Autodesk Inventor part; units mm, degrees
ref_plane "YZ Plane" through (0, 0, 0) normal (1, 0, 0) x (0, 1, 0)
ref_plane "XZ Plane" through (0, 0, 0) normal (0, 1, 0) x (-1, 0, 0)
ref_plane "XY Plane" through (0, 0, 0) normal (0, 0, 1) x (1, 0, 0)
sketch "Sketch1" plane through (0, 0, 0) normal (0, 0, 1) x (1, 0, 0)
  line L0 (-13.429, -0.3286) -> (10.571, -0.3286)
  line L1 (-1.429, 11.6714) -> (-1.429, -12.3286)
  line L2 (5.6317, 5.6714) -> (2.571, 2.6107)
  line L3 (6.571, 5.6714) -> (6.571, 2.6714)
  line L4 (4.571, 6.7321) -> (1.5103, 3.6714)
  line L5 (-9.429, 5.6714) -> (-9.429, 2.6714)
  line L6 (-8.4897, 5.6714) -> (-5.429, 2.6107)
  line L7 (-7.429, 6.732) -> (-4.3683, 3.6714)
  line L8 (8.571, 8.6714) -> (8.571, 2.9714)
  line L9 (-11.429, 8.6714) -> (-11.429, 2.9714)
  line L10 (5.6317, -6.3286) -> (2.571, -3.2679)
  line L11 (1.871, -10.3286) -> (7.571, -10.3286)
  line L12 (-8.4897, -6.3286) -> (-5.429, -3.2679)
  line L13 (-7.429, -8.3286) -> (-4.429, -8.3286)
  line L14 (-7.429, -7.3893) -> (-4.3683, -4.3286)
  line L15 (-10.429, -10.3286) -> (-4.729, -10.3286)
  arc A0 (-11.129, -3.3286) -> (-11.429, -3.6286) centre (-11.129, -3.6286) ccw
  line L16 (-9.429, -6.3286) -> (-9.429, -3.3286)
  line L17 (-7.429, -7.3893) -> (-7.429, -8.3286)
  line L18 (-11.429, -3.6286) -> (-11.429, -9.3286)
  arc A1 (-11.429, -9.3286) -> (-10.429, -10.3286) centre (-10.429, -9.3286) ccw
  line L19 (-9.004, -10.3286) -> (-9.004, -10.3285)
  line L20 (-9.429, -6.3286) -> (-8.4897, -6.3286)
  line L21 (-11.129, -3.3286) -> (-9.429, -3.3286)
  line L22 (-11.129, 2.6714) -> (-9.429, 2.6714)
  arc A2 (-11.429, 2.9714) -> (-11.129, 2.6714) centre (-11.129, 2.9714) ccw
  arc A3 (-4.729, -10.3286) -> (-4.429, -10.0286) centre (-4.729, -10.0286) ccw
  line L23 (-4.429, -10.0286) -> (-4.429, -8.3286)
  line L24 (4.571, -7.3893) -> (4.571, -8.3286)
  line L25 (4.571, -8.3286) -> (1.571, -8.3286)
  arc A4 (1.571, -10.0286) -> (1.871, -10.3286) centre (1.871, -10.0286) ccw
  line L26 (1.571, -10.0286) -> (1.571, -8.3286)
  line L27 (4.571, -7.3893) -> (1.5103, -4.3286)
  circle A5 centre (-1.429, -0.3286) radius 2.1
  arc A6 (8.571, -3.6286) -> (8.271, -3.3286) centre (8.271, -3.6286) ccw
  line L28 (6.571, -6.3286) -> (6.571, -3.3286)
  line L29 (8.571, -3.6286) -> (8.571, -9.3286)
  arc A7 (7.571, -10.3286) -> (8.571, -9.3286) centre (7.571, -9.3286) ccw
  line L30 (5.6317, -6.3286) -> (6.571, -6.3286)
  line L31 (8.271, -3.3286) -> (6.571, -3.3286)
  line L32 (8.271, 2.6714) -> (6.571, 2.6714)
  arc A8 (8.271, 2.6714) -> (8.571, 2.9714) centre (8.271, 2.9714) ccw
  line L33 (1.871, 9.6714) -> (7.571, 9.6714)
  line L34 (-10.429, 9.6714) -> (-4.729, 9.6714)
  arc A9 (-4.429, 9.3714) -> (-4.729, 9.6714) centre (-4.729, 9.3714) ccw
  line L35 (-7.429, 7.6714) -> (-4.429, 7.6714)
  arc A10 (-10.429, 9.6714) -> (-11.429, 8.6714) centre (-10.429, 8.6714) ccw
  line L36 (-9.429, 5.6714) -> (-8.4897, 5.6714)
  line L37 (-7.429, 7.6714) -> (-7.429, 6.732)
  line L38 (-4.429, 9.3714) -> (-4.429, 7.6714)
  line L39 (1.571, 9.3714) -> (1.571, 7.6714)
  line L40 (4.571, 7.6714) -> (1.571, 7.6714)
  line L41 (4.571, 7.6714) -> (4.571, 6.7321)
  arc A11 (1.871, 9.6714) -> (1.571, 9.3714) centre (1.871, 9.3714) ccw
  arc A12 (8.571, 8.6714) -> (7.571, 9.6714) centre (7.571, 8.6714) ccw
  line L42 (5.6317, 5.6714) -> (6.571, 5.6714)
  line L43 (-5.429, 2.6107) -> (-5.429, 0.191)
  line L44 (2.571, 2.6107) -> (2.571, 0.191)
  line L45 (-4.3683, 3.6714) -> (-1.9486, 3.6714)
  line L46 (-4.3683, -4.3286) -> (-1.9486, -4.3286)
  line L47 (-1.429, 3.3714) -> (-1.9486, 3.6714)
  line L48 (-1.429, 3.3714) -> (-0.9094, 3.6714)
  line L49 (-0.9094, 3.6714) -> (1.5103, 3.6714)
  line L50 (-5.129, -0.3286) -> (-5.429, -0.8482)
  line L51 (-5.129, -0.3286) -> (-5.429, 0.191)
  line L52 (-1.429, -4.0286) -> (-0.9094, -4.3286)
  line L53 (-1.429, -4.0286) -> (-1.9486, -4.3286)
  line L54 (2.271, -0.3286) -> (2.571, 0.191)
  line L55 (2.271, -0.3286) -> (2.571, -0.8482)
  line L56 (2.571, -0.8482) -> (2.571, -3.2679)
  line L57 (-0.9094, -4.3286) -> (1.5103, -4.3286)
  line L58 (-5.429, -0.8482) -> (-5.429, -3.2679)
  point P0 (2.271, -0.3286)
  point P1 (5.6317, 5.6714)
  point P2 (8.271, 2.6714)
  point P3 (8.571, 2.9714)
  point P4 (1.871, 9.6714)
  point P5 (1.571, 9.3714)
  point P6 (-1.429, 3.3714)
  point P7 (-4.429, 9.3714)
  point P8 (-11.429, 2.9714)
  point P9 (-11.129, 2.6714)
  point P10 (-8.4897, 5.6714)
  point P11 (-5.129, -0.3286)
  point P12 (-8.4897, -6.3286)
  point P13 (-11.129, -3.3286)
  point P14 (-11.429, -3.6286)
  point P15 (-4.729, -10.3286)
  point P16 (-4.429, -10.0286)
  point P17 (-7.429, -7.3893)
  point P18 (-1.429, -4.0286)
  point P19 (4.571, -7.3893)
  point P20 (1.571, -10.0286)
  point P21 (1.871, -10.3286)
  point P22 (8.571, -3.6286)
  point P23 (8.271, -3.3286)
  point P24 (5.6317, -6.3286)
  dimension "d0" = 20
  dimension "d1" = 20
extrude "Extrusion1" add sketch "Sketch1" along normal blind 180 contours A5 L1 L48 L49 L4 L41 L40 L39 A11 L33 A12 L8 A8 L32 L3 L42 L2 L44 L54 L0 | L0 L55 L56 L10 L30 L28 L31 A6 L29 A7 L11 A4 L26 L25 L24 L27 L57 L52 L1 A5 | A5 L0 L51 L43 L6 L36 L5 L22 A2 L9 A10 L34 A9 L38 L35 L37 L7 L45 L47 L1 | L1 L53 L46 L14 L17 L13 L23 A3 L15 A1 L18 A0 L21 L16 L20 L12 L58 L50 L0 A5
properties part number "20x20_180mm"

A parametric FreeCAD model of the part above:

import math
import FreeCAD as App
import Part
import Sketcher

V = App.Vector
Q = App.Units.Quantity

doc = App.newDocument("Part")
body = doc.addObject("PartDesign::Body", "Body")

sketch1 = body.newObject("Sketcher::SketchObject", "Sketch")
sketch1.AttachmentSupport = (doc.getObject("XY_Plane"), [""])
sketch1.MapMode = "FlatFace"
sketch1.addGeometry(Part.LineSegment(V(-0.91, 3.67, 0), V(-1.43, 3.37, 0)), False)
sketch1.addGeometry(Part.LineSegment(V(-1.43, 3.37, 0), V(-1.95, 3.67, 0)), False)
sketch1.addGeometry(Part.LineSegment(V(-1.95, 3.67, 0), V(-4.37, 3.67, 0)), False)
sketch1.addGeometry(Part.LineSegment(V(-4.37, 3.67, 0), V(-7.43, 6.73, 0)), False)
sketch1.addGeometry(Part.LineSegment(V(-7.43, 6.73, 0), V(-7.43, 7.67, 0)), False)
sketch1.addGeometry(Part.LineSegment(V(-7.43, 7.67, 0), V(-4.43, 7.67, 0)), False)
sketch1.addGeometry(Part.LineSegment(V(-4.43, 7.67, 0), V(-4.43, 9.37, 0)), False)
sketch1.addGeometry(Part.ArcOfCircle(Part.Circle(V(-4.73, 9.37, 0), V(0, 0, 1), 0.3), math.radians(0), math.radians(90)), False)
sketch1.addGeometry(Part.LineSegment(V(-4.73, 9.67, 0), V(-10.43, 9.67, 0)), False)
sketch1.addGeometry(Part.ArcOfCircle(Part.Circle(V(-10.43, 8.67, 0), V(0, 0, 1), 1), math.radians(90), math.radians(180)), False)
sketch1.addGeometry(Part.LineSegment(V(-11.43, 8.67, 0), V(-11.43, 2.97, 0)), False)
sketch1.addGeometry(Part.ArcOfCircle(Part.Circle(V(-11.13, 2.97, 0), V(0, 0, 1), 0.3), math.radians(180), math.radians(270)), False)
sketch1.addGeometry(Part.LineSegment(V(-11.13, 2.67, 0), V(-9.43, 2.67, 0)), False)
sketch1.addGeometry(Part.LineSegment(V(-9.43, 2.67, 0), V(-9.43, 5.67, 0)), False)
sketch1.addGeometry(Part.LineSegment(V(-9.43, 5.67, 0), V(-8.49, 5.67, 0)), False)
sketch1.addGeometry(Part.LineSegment(V(-8.49, 5.67, 0), V(-5.43, 2.61, 0)), False)
sketch1.addGeometry(Part.LineSegment(V(-5.43, 2.61, 0), V(-5.43, 0.19, 0)), False)
sketch1.addGeometry(Part.LineSegment(V(-5.43, 0.19, 0), V(-5.13, -0.33, 0)), False)
sketch1.addGeometry(Part.LineSegment(V(-5.13, -0.33, 0), V(-5.43, -0.85, 0)), False)
sketch1.addGeometry(Part.LineSegment(V(-5.43, -0.85, 0), V(-5.43, -3.27, 0)), False)
sketch1.addGeometry(Part.LineSegment(V(-5.43, -3.27, 0), V(-8.49, -6.33, 0)), False)
sketch1.addGeometry(Part.LineSegment(V(-8.49, -6.33, 0), V(-9.43, -6.33, 0)), False)
sketch1.addGeometry(Part.LineSegment(V(-9.43, -6.33, 0), V(-9.43, -3.33, 0)), False)
sketch1.addGeometry(Part.LineSegment(V(-9.43, -3.33, 0), V(-11.13, -3.33, 0)), False)
sketch1.addGeometry(Part.ArcOfCircle(Part.Circle(V(-11.13, -3.63, 0), V(0, 0, 1), 0.3), math.radians(90), math.radians(180)), False)
sketch1.addGeometry(Part.LineSegment(V(-11.43, -3.63, 0), V(-11.43, -9.33, 0)), False)
sketch1.addGeometry(Part.ArcOfCircle(Part.Circle(V(-10.43, -9.33, 0), V(0, 0, 1), 1), math.radians(180), math.radians(270)), False)
sketch1.addGeometry(Part.LineSegment(V(-10.43, -10.33, 0), V(-4.73, -10.33, 0)), False)
sketch1.addGeometry(Part.ArcOfCircle(Part.Circle(V(-4.73, -10.03, 0), V(0, 0, 1), 0.3), math.radians(-90), math.radians(0)), False)
sketch1.addGeometry(Part.LineSegment(V(-4.43, -10.03, 0), V(-4.43, -8.33, 0)), False)
sketch1.addGeometry(Part.LineSegment(V(-4.43, -8.33, 0), V(-7.43, -8.33, 0)), False)
sketch1.addGeometry(Part.LineSegment(V(-7.43, -8.33, 0), V(-7.43, -7.39, 0)), False)
sketch1.addGeometry(Part.LineSegment(V(-7.43, -7.39, 0), V(-4.37, -4.33, 0)), False)
sketch1.addGeometry(Part.LineSegment(V(-4.37, -4.33, 0), V(-1.95, -4.33, 0)), False)
sketch1.addGeometry(Part.LineSegment(V(-1.95, -4.33, 0), V(-1.43, -4.03, 0)), False)
sketch1.addGeometry(Part.LineSegment(V(-1.43, -4.03, 0), V(-0.91, -4.33, 0)), False)
sketch1.addGeometry(Part.LineSegment(V(-0.91, -4.33, 0), V(1.51, -4.33, 0)), False)
sketch1.addGeometry(Part.LineSegment(V(1.51, -4.33, 0), V(4.57, -7.39, 0)), False)
sketch1.addGeometry(Part.LineSegment(V(4.57, -7.39, 0), V(4.57, -8.33, 0)), False)
sketch1.addGeometry(Part.LineSegment(V(4.57, -8.33, 0), V(1.57, -8.33, 0)), False)
sketch1.addGeometry(Part.LineSegment(V(1.57, -8.33, 0), V(1.57, -10.03, 0)), False)
sketch1.addGeometry(Part.ArcOfCircle(Part.Circle(V(1.87, -10.03, 0), V(0, 0, 1), 0.3), math.radians(180), math.radians(270)), False)
sketch1.addGeometry(Part.LineSegment(V(1.87, -10.33, 0), V(7.57, -10.33, 0)), False)
sketch1.addGeometry(Part.ArcOfCircle(Part.Circle(V(7.57, -9.33, 0), V(0, 0, 1), 1), math.radians(-90), math.radians(0)), False)
sketch1.addGeometry(Part.LineSegment(V(8.57, -9.33, 0), V(8.57, -3.63, 0)), False)
sketch1.addGeometry(Part.ArcOfCircle(Part.Circle(V(8.27, -3.63, 0), V(0, 0, 1), 0.3), math.radians(0), math.radians(90)), False)
sketch1.addGeometry(Part.LineSegment(V(8.27, -3.33, 0), V(6.57, -3.33, 0)), False)
sketch1.addGeometry(Part.LineSegment(V(6.57, -3.33, 0), V(6.57, -6.33, 0)), False)
sketch1.addGeometry(Part.LineSegment(V(6.57, -6.33, 0), V(5.63, -6.33, 0)), False)
sketch1.addGeometry(Part.LineSegment(V(5.63, -6.33, 0), V(2.57, -3.27, 0)), False)
sketch1.addGeometry(Part.LineSegment(V(2.57, -3.27, 0), V(2.57, -0.85, 0)), False)
sketch1.addGeometry(Part.LineSegment(V(2.57, -0.85, 0), V(2.27, -0.33, 0)), False)
sketch1.addGeometry(Part.LineSegment(V(2.27, -0.33, 0), V(2.57, 0.19, 0)), False)
sketch1.addGeometry(Part.LineSegment(V(2.57, 0.19, 0), V(2.57, 2.61, 0)), False)
sketch1.addGeometry(Part.LineSegment(V(2.57, 2.61, 0), V(5.63, 5.67, 0)), False)
sketch1.addGeometry(Part.LineSegment(V(5.63, 5.67, 0), V(6.57, 5.67, 0)), False)
sketch1.addGeometry(Part.LineSegment(V(6.57, 5.67, 0), V(6.57, 2.67, 0)), False)
sketch1.addGeometry(Part.LineSegment(V(6.57, 2.67, 0), V(8.27, 2.67, 0)), False)
sketch1.addGeometry(Part.ArcOfCircle(Part.Circle(V(8.27, 2.97, 0), V(0, 0, 1), 0.3), math.radians(-90), math.radians(0)), False)
sketch1.addGeometry(Part.LineSegment(V(8.57, 2.97, 0), V(8.57, 8.67, 0)), False)
sketch1.addGeometry(Part.ArcOfCircle(Part.Circle(V(7.57, 8.67, 0), V(0, 0, 1), 1), math.radians(0), math.radians(90)), False)
sketch1.addGeometry(Part.LineSegment(V(7.57, 9.67, 0), V(1.87, 9.67, 0)), False)
sketch1.addGeometry(Part.ArcOfCircle(Part.Circle(V(1.87, 9.37, 0), V(0, 0, 1), 0.3), math.radians(90), math.radians(180)), False)
sketch1.addGeometry(Part.LineSegment(V(1.57, 9.37, 0), V(1.57, 7.67, 0)), False)
sketch1.addGeometry(Part.LineSegment(V(1.57, 7.67, 0), V(4.57, 7.67, 0)), False)
sketch1.addGeometry(Part.LineSegment(V(4.57, 7.67, 0), V(4.57, 6.73, 0)), False)
sketch1.addGeometry(Part.LineSegment(V(4.57, 6.73, 0), V(1.51, 3.67, 0)), False)
sketch1.addGeometry(Part.LineSegment(V(1.51, 3.67, 0), V(-0.91, 3.67, 0)), False)
sketch1.addGeometry(Part.Circle(V(-1.43, -0.33, 0), V(0, 0, 1), 2.1), False)
sketch1.addConstraint(Sketcher.Constraint("Coincident", 0, 2, 1, 1))
sketch1.addConstraint(Sketcher.Constraint("Coincident", 1, 2, 2, 1))
sketch1.addConstraint(Sketcher.Constraint("Coincident", 2, 2, 3, 1))
sketch1.addConstraint(Sketcher.Constraint("Coincident", 3, 2, 4, 1))
sketch1.addConstraint(Sketcher.Constraint("Coincident", 4, 2, 5, 1))
sketch1.addConstraint(Sketcher.Constraint("Coincident", 5, 2, 6, 1))
sketch1.addConstraint(Sketcher.Constraint("Tangent", 6, 2, 7, 1))
sketch1.addConstraint(Sketcher.Constraint("Tangent", 7, 2, 8, 1))
sketch1.addConstraint(Sketcher.Constraint("Tangent", 8, 2, 9, 1))
sketch1.addConstraint(Sketcher.Constraint("Tangent", 9, 2, 10, 1))
sketch1.addConstraint(Sketcher.Constraint("Tangent", 10, 2, 11, 1))
sketch1.addConstraint(Sketcher.Constraint("Tangent", 11, 2, 12, 1))
sketch1.addConstraint(Sketcher.Constraint("Coincident", 12, 2, 13, 1))
sketch1.addConstraint(Sketcher.Constraint("Coincident", 13, 2, 14, 1))
sketch1.addConstraint(Sketcher.Constraint("Coincident", 14, 2, 15, 1))
sketch1.addConstraint(Sketcher.Constraint("Coincident", 15, 2, 16, 1))
sketch1.addConstraint(Sketcher.Constraint("Coincident", 16, 2, 17, 1))
sketch1.addConstraint(Sketcher.Constraint("Coincident", 17, 2, 18, 1))
sketch1.addConstraint(Sketcher.Constraint("Coincident", 18, 2, 19, 1))
sketch1.addConstraint(Sketcher.Constraint("Coincident", 19, 2, 20, 1))
sketch1.addConstraint(Sketcher.Constraint("Coincident", 20, 2, 21, 1))
sketch1.addConstraint(Sketcher.Constraint("Coincident", 21, 2, 22, 1))
sketch1.addConstraint(Sketcher.Constraint("Coincident", 22, 2, 23, 1))
sketch1.addConstraint(Sketcher.Constraint("Tangent", 23, 2, 24, 1))
sketch1.addConstraint(Sketcher.Constraint("Tangent", 24, 2, 25, 1))
sketch1.addConstraint(Sketcher.Constraint("Tangent", 25, 2, 26, 1))
sketch1.addConstraint(Sketcher.Constraint("Tangent", 26, 2, 27, 1))
sketch1.addConstraint(Sketcher.Constraint("Tangent", 27, 2, 28, 1))
sketch1.addConstraint(Sketcher.Constraint("Tangent", 28, 2, 29, 1))
sketch1.addConstraint(Sketcher.Constraint("Coincident", 29, 2, 30, 1))
sketch1.addConstraint(Sketcher.Constraint("Coincident", 30, 2, 31, 1))
sketch1.addConstraint(Sketcher.Constraint("Coincident", 31, 2, 32, 1))
sketch1.addConstraint(Sketcher.Constraint("Coincident", 32, 2, 33, 1))
sketch1.addConstraint(Sketcher.Constraint("Coincident", 33, 2, 34, 1))
sketch1.addConstraint(Sketcher.Constraint("Coincident", 34, 2, 35, 1))
sketch1.addConstraint(Sketcher.Constraint("Coincident", 35, 2, 36, 1))
sketch1.addConstraint(Sketcher.Constraint("Coincident", 36, 2, 37, 1))
sketch1.addConstraint(Sketcher.Constraint("Coincident", 37, 2, 38, 1))
sketch1.addConstraint(Sketcher.Constraint("Coincident", 38, 2, 39, 1))
sketch1.addConstraint(Sketcher.Constraint("Coincident", 39, 2, 40, 1))
sketch1.addConstraint(Sketcher.Constraint("Tangent", 40, 2, 41, 1))
sketch1.addConstraint(Sketcher.Constraint("Tangent", 41, 2, 42, 1))
sketch1.addConstraint(Sketcher.Constraint("Tangent", 42, 2, 43, 1))
sketch1.addConstraint(Sketcher.Constraint("Tangent", 43, 2, 44, 1))
sketch1.addConstraint(Sketcher.Constraint("Tangent", 44, 2, 45, 1))
sketch1.addConstraint(Sketcher.Constraint("Tangent", 45, 2, 46, 1))
sketch1.addConstraint(Sketcher.Constraint("Coincident", 46, 2, 47, 1))
sketch1.addConstraint(Sketcher.Constraint("Coincident", 47, 2, 48, 1))
sketch1.addConstraint(Sketcher.Constraint("Coincident", 48, 2, 49, 1))
sketch1.addConstraint(Sketcher.Constraint("Coincident", 49, 2, 50, 1))
sketch1.addConstraint(Sketcher.Constraint("Coincident", 50, 2, 51, 1))
sketch1.addConstraint(Sketcher.Constraint("Coincident", 51, 2, 52, 1))
sketch1.addConstraint(Sketcher.Constraint("Coincident", 52, 2, 53, 1))
sketch1.addConstraint(Sketcher.Constraint("Coincident", 53, 2, 54, 1))
sketch1.addConstraint(Sketcher.Constraint("Coincident", 54, 2, 55, 1))
sketch1.addConstraint(Sketcher.Constraint("Coincident", 55, 2, 56, 1))
sketch1.addConstraint(Sketcher.Constraint("Coincident", 56, 2, 57, 1))
sketch1.addConstraint(Sketcher.Constraint("Tangent", 57, 2, 58, 1))
sketch1.addConstraint(Sketcher.Constraint("Tangent", 58, 2, 59, 1))
sketch1.addConstraint(Sketcher.Constraint("Tangent", 59, 2, 60, 1))
sketch1.addConstraint(Sketcher.Constraint("Tangent", 60, 2, 61, 1))
sketch1.addConstraint(Sketcher.Constraint("Tangent", 61, 2, 62, 1))
sketch1.addConstraint(Sketcher.Constraint("Tangent", 62, 2, 63, 1))
sketch1.addConstraint(Sketcher.Constraint("Coincident", 63, 2, 64, 1))
sketch1.addConstraint(Sketcher.Constraint("Coincident", 64, 2, 65, 1))
sketch1.addConstraint(Sketcher.Constraint("Coincident", 65, 2, 66, 1))
sketch1.addConstraint(Sketcher.Constraint("Coincident", 66, 2, 67, 1))
sketch1.addConstraint(Sketcher.Constraint("Coincident", 67, 2, 0, 1))
sketch1.addConstraint(Sketcher.Constraint("Horizontal", 2))
sketch1.addConstraint(Sketcher.Constraint("Vertical", 4))
sketch1.addConstraint(Sketcher.Constraint("Horizontal", 5))
sketch1.addConstraint(Sketcher.Constraint("Vertical", 6))
sketch1.addConstraint(Sketcher.Constraint("Horizontal", 8))
sketch1.addConstraint(Sketcher.Constraint("Vertical", 10))
sketch1.addConstraint(Sketcher.Constraint("Horizontal", 12))
sketch1.addConstraint(Sketcher.Constraint("Vertical", 13))
sketch1.addConstraint(Sketcher.Constraint("Horizontal", 14))
sketch1.addConstraint(Sketcher.Constraint("Vertical", 16))
sketch1.addConstraint(Sketcher.Constraint("Vertical", 19))
sketch1.addConstraint(Sketcher.Constraint("Horizontal", 21))
sketch1.addConstraint(Sketcher.Constraint("Vertical", 22))
sketch1.addConstraint(Sketcher.Constraint("Horizontal", 23))
sketch1.addConstraint(Sketcher.Constraint("Vertical", 25))
sketch1.addConstraint(Sketcher.Constraint("Horizontal", 27))
sketch1.addConstraint(Sketcher.Constraint("Vertical", 29))
sketch1.addConstraint(Sketcher.Constraint("Horizontal", 30))
sketch1.addConstraint(Sketcher.Constraint("Vertical", 31))
sketch1.addConstraint(Sketcher.Constraint("Horizontal", 33))
sketch1.addConstraint(Sketcher.Constraint("Horizontal", 36))
sketch1.addConstraint(Sketcher.Constraint("Vertical", 38))
sketch1.addConstraint(Sketcher.Constraint("Horizontal", 39))
sketch1.addConstraint(Sketcher.Constraint("Vertical", 40))
sketch1.addConstraint(Sketcher.Constraint("Horizontal", 42))
sketch1.addConstraint(Sketcher.Constraint("Vertical", 44))
sketch1.addConstraint(Sketcher.Constraint("Horizontal", 46))
sketch1.addConstraint(Sketcher.Constraint("Vertical", 47))
sketch1.addConstraint(Sketcher.Constraint("Horizontal", 48))
sketch1.addConstraint(Sketcher.Constraint("Vertical", 50))
sketch1.addConstraint(Sketcher.Constraint("Vertical", 53))
sketch1.addConstraint(Sketcher.Constraint("Horizontal", 55))
sketch1.addConstraint(Sketcher.Constraint("Vertical", 56))
sketch1.addConstraint(Sketcher.Constraint("Horizontal", 57))
sketch1.addConstraint(Sketcher.Constraint("Vertical", 59))
sketch1.addConstraint(Sketcher.Constraint("Horizontal", 61))
sketch1.addConstraint(Sketcher.Constraint("Vertical", 63))
sketch1.addConstraint(Sketcher.Constraint("Horizontal", 64))
sketch1.addConstraint(Sketcher.Constraint("Vertical", 65))
sketch1.addConstraint(Sketcher.Constraint("Horizontal", 67))
sketch1.addConstraint(Sketcher.Constraint("Equal", 7, 11))
sketch1.addConstraint(Sketcher.Constraint("Equal", 11, 24))
sketch1.addConstraint(Sketcher.Constraint("Equal", 9, 26))
sketch1.addConstraint(Sketcher.Constraint("Equal", 24, 28))
sketch1.addConstraint(Sketcher.Constraint("Equal", 28, 41))
sketch1.addConstraint(Sketcher.Constraint("Equal", 26, 43))
sketch1.addConstraint(Sketcher.Constraint("Equal", 41, 45))
sketch1.addConstraint(Sketcher.Constraint("Equal", 45, 58))
sketch1.addConstraint(Sketcher.Constraint("Equal", 43, 60))
sketch1.addConstraint(Sketcher.Constraint("Equal", 58, 62))
sketch1.addConstraint(Sketcher.Constraint("Parallel", 3, 15))
sketch1.addConstraint(Sketcher.Constraint("Perpendicular", 0, 17))
sketch1.addConstraint(Sketcher.Constraint("Perpendicular", 1, 18))
sketch1.addConstraint(Sketcher.Constraint("Perpendicular", 15, 20))
sketch1.addConstraint(Sketcher.Constraint("Parallel", 20, 32))
sketch1.addConstraint(Sketcher.Constraint("Perpendicular", 17, 34))
sketch1.addConstraint(Sketcher.Constraint("Perpendicular", 18, 35))
sketch1.addConstraint(Sketcher.Constraint("Perpendicular", 32, 37))
sketch1.addConstraint(Sketcher.Constraint("Parallel", 37, 49))
sketch1.addConstraint(Sketcher.Constraint("Perpendicular", 34, 51))
sketch1.addConstraint(Sketcher.Constraint("Perpendicular", 35, 52))
sketch1.addConstraint(Sketcher.Constraint("Perpendicular", 49, 54))
sketch1.addConstraint(Sketcher.Constraint("Parallel", 54, 66))
sketch1.addConstraint(Sketcher.Constraint("Horizontal", 28, 3, 41, 3))
sketch1.addConstraint(Sketcher.Constraint("Horizontal", 24, 3, 45, 3))
sketch1.addConstraint(Sketcher.Constraint("Horizontal", 11, 3, 58, 3))
sketch1.addConstraint(Sketcher.Constraint("Horizontal", 9, 3, 60, 3))
sketch1.addConstraint(Sketcher.Constraint("Horizontal", 68, 3, 17, 2))
sketch1.addConstraint(Sketcher.Constraint("Horizontal", 33, 2, 35, 2))
sketch1.addConstraint(Sketcher.Constraint("Horizontal", 31, 2, 37, 2))
sketch1.addConstraint(Sketcher.Constraint("Horizontal", 30, 2, 38, 2))
sketch1.addConstraint(Sketcher.Constraint("Horizontal", 21, 2, 47, 2))
sketch1.addConstraint(Sketcher.Constraint("Horizontal", 19, 2, 49, 2))
sketch1.addConstraint(Sketcher.Constraint("Horizontal", 18, 2, 50, 2))
sketch1.addConstraint(Sketcher.Constraint("Horizontal", 17, 2, 51, 2))
sketch1.addConstraint(Sketcher.Constraint("Horizontal", 16, 2, 52, 2))
sketch1.addConstraint(Sketcher.Constraint("Horizontal", 15, 2, 53, 2))
sketch1.addConstraint(Sketcher.Constraint("Horizontal", 14, 2, 54, 2))
sketch1.addConstraint(Sketcher.Constraint("Horizontal", 5, 2, 63, 2))
sketch1.addConstraint(Sketcher.Constraint("Horizontal", 3, 2, 65, 2))
sketch1.addConstraint(Sketcher.Constraint("Horizontal", 2, 2, 66, 2))
sketch1.addConstraint(Sketcher.Constraint("Vertical", 11, 3, 24, 3))
sketch1.addConstraint(Sketcher.Constraint("Vertical", 7, 3, 28, 3))
sketch1.addConstraint(Sketcher.Constraint("Vertical", 45, 3, 58, 3))
sketch1.addConstraint(Sketcher.Constraint("Vertical", 41, 3, 62, 3))
sketch1.addConstraint(Sketcher.Constraint("Vertical", 68, 3, 0, 2))
sketch1.addConstraint(Sketcher.Constraint("Vertical", 16, 2, 18, 2))
sketch1.addConstraint(Sketcher.Constraint("Vertical", 14, 2, 20, 2))
sketch1.addConstraint(Sketcher.Constraint("Vertical", 13, 2, 21, 2))
sketch1.addConstraint(Sketcher.Constraint("Vertical", 4, 2, 30, 2))
sketch1.addConstraint(Sketcher.Constraint("Vertical", 2, 2, 32, 2))
sketch1.addConstraint(Sketcher.Constraint("Vertical", 1, 2, 33, 2))
sketch1.addConstraint(Sketcher.Constraint("Vertical", 0, 2, 34, 2))
sketch1.addConstraint(Sketcher.Constraint("Vertical", 50, 2, 52, 2))
sketch1.addConstraint(Sketcher.Constraint("Vertical", 48, 2, 54, 2))
sketch1.addConstraint(Sketcher.Constraint("Vertical", 47, 2, 55, 2))
sketch1.addConstraint(Sketcher.Constraint("Vertical", 38, 2, 64, 2))
sketch1.addConstraint(Sketcher.Constraint("Equal", 33, 36))
sketch1.addConstraint(Sketcher.Constraint("Equal", 30, 39))
sketch1.addConstraint(Sketcher.Constraint("Equal", 27, 42))
sketch1.addConstraint(Sketcher.Constraint("Equal", 23, 46))
sketch1.addConstraint(Sketcher.Constraint("Equal", 21, 48))
sketch1.addConstraint(Sketcher.Constraint("Equal", 55, 4))
sketch1.addConstraint(Sketcher.Constraint("Equal", 57, 6))
sketch1.addConstraint(Sketcher.Constraint("Equal", 61, 10))
sketch1.addConstraint(Sketcher.Constraint("Equal", 64, 13))
sketch1.addConstraint(Sketcher.Constraint("Equal", 67, 16))
sketch1.addConstraint(Sketcher.Constraint("Equal", 16, 19))
sketch1.addConstraint(Sketcher.Constraint("Equal", 13, 22))
sketch1.addConstraint(Sketcher.Constraint("Equal", 10, 25))
sketch1.addConstraint(Sketcher.Constraint("Equal", 6, 29))
sketch1.addConstraint(Sketcher.Constraint("Equal", 4, 31))
sketch1.addConstraint(Sketcher.Constraint("Equal", 3, 15))
sketch1.addConstraint(Sketcher.Constraint("Equal", 1, 17))
sketch1.addConstraint(Sketcher.Constraint("Radius", 9, 1.0))
sketch1.addConstraint(Sketcher.Constraint("Diameter", 68, 4.2))
sketch1.addConstraint(Sketcher.Constraint("Radius", 7, 0.3))
sketch1.addConstraint(Sketcher.Constraint("DistanceX", 5, 1, 5, 2, 3.0))
sketch1.addConstraint(Sketcher.Constraint("Angle", 0, Q("-149.9993 deg")))
sketch1.addConstraint(Sketcher.Constraint("DistanceX", 8, 2, 8, 1, 5.7))
sketch1.addConstraint(Sketcher.Constraint("DistanceX", 12, 1, 12, 2, 1.7))
sketch1.addConstraint(Sketcher.Constraint("Distance", 0, 0.6))
sketch1.addConstraint(Sketcher.Constraint("DistanceX", 2, 2, 2, 1, 2.4197))
sketch1.addConstraint(Sketcher.Constraint("DistanceX", 14, 1, 14, 2, 0.9393))
sketch1.addConstraint(Sketcher.Constraint("DistanceX", 7, 3, -1, 1, 4.729))
sketch1.addConstraint(Sketcher.Constraint("DistanceX", -1, 1, 41, 3, 1.871))
sketch1.addConstraint(Sketcher.Constraint("DistanceY", -1, 1, 3, 2, 6.732))
pad1 = body.newObject("PartDesign::Pad", "Pad")
pad1.Profile = sketch1
pad1.Length = 180

doc.recompute()
